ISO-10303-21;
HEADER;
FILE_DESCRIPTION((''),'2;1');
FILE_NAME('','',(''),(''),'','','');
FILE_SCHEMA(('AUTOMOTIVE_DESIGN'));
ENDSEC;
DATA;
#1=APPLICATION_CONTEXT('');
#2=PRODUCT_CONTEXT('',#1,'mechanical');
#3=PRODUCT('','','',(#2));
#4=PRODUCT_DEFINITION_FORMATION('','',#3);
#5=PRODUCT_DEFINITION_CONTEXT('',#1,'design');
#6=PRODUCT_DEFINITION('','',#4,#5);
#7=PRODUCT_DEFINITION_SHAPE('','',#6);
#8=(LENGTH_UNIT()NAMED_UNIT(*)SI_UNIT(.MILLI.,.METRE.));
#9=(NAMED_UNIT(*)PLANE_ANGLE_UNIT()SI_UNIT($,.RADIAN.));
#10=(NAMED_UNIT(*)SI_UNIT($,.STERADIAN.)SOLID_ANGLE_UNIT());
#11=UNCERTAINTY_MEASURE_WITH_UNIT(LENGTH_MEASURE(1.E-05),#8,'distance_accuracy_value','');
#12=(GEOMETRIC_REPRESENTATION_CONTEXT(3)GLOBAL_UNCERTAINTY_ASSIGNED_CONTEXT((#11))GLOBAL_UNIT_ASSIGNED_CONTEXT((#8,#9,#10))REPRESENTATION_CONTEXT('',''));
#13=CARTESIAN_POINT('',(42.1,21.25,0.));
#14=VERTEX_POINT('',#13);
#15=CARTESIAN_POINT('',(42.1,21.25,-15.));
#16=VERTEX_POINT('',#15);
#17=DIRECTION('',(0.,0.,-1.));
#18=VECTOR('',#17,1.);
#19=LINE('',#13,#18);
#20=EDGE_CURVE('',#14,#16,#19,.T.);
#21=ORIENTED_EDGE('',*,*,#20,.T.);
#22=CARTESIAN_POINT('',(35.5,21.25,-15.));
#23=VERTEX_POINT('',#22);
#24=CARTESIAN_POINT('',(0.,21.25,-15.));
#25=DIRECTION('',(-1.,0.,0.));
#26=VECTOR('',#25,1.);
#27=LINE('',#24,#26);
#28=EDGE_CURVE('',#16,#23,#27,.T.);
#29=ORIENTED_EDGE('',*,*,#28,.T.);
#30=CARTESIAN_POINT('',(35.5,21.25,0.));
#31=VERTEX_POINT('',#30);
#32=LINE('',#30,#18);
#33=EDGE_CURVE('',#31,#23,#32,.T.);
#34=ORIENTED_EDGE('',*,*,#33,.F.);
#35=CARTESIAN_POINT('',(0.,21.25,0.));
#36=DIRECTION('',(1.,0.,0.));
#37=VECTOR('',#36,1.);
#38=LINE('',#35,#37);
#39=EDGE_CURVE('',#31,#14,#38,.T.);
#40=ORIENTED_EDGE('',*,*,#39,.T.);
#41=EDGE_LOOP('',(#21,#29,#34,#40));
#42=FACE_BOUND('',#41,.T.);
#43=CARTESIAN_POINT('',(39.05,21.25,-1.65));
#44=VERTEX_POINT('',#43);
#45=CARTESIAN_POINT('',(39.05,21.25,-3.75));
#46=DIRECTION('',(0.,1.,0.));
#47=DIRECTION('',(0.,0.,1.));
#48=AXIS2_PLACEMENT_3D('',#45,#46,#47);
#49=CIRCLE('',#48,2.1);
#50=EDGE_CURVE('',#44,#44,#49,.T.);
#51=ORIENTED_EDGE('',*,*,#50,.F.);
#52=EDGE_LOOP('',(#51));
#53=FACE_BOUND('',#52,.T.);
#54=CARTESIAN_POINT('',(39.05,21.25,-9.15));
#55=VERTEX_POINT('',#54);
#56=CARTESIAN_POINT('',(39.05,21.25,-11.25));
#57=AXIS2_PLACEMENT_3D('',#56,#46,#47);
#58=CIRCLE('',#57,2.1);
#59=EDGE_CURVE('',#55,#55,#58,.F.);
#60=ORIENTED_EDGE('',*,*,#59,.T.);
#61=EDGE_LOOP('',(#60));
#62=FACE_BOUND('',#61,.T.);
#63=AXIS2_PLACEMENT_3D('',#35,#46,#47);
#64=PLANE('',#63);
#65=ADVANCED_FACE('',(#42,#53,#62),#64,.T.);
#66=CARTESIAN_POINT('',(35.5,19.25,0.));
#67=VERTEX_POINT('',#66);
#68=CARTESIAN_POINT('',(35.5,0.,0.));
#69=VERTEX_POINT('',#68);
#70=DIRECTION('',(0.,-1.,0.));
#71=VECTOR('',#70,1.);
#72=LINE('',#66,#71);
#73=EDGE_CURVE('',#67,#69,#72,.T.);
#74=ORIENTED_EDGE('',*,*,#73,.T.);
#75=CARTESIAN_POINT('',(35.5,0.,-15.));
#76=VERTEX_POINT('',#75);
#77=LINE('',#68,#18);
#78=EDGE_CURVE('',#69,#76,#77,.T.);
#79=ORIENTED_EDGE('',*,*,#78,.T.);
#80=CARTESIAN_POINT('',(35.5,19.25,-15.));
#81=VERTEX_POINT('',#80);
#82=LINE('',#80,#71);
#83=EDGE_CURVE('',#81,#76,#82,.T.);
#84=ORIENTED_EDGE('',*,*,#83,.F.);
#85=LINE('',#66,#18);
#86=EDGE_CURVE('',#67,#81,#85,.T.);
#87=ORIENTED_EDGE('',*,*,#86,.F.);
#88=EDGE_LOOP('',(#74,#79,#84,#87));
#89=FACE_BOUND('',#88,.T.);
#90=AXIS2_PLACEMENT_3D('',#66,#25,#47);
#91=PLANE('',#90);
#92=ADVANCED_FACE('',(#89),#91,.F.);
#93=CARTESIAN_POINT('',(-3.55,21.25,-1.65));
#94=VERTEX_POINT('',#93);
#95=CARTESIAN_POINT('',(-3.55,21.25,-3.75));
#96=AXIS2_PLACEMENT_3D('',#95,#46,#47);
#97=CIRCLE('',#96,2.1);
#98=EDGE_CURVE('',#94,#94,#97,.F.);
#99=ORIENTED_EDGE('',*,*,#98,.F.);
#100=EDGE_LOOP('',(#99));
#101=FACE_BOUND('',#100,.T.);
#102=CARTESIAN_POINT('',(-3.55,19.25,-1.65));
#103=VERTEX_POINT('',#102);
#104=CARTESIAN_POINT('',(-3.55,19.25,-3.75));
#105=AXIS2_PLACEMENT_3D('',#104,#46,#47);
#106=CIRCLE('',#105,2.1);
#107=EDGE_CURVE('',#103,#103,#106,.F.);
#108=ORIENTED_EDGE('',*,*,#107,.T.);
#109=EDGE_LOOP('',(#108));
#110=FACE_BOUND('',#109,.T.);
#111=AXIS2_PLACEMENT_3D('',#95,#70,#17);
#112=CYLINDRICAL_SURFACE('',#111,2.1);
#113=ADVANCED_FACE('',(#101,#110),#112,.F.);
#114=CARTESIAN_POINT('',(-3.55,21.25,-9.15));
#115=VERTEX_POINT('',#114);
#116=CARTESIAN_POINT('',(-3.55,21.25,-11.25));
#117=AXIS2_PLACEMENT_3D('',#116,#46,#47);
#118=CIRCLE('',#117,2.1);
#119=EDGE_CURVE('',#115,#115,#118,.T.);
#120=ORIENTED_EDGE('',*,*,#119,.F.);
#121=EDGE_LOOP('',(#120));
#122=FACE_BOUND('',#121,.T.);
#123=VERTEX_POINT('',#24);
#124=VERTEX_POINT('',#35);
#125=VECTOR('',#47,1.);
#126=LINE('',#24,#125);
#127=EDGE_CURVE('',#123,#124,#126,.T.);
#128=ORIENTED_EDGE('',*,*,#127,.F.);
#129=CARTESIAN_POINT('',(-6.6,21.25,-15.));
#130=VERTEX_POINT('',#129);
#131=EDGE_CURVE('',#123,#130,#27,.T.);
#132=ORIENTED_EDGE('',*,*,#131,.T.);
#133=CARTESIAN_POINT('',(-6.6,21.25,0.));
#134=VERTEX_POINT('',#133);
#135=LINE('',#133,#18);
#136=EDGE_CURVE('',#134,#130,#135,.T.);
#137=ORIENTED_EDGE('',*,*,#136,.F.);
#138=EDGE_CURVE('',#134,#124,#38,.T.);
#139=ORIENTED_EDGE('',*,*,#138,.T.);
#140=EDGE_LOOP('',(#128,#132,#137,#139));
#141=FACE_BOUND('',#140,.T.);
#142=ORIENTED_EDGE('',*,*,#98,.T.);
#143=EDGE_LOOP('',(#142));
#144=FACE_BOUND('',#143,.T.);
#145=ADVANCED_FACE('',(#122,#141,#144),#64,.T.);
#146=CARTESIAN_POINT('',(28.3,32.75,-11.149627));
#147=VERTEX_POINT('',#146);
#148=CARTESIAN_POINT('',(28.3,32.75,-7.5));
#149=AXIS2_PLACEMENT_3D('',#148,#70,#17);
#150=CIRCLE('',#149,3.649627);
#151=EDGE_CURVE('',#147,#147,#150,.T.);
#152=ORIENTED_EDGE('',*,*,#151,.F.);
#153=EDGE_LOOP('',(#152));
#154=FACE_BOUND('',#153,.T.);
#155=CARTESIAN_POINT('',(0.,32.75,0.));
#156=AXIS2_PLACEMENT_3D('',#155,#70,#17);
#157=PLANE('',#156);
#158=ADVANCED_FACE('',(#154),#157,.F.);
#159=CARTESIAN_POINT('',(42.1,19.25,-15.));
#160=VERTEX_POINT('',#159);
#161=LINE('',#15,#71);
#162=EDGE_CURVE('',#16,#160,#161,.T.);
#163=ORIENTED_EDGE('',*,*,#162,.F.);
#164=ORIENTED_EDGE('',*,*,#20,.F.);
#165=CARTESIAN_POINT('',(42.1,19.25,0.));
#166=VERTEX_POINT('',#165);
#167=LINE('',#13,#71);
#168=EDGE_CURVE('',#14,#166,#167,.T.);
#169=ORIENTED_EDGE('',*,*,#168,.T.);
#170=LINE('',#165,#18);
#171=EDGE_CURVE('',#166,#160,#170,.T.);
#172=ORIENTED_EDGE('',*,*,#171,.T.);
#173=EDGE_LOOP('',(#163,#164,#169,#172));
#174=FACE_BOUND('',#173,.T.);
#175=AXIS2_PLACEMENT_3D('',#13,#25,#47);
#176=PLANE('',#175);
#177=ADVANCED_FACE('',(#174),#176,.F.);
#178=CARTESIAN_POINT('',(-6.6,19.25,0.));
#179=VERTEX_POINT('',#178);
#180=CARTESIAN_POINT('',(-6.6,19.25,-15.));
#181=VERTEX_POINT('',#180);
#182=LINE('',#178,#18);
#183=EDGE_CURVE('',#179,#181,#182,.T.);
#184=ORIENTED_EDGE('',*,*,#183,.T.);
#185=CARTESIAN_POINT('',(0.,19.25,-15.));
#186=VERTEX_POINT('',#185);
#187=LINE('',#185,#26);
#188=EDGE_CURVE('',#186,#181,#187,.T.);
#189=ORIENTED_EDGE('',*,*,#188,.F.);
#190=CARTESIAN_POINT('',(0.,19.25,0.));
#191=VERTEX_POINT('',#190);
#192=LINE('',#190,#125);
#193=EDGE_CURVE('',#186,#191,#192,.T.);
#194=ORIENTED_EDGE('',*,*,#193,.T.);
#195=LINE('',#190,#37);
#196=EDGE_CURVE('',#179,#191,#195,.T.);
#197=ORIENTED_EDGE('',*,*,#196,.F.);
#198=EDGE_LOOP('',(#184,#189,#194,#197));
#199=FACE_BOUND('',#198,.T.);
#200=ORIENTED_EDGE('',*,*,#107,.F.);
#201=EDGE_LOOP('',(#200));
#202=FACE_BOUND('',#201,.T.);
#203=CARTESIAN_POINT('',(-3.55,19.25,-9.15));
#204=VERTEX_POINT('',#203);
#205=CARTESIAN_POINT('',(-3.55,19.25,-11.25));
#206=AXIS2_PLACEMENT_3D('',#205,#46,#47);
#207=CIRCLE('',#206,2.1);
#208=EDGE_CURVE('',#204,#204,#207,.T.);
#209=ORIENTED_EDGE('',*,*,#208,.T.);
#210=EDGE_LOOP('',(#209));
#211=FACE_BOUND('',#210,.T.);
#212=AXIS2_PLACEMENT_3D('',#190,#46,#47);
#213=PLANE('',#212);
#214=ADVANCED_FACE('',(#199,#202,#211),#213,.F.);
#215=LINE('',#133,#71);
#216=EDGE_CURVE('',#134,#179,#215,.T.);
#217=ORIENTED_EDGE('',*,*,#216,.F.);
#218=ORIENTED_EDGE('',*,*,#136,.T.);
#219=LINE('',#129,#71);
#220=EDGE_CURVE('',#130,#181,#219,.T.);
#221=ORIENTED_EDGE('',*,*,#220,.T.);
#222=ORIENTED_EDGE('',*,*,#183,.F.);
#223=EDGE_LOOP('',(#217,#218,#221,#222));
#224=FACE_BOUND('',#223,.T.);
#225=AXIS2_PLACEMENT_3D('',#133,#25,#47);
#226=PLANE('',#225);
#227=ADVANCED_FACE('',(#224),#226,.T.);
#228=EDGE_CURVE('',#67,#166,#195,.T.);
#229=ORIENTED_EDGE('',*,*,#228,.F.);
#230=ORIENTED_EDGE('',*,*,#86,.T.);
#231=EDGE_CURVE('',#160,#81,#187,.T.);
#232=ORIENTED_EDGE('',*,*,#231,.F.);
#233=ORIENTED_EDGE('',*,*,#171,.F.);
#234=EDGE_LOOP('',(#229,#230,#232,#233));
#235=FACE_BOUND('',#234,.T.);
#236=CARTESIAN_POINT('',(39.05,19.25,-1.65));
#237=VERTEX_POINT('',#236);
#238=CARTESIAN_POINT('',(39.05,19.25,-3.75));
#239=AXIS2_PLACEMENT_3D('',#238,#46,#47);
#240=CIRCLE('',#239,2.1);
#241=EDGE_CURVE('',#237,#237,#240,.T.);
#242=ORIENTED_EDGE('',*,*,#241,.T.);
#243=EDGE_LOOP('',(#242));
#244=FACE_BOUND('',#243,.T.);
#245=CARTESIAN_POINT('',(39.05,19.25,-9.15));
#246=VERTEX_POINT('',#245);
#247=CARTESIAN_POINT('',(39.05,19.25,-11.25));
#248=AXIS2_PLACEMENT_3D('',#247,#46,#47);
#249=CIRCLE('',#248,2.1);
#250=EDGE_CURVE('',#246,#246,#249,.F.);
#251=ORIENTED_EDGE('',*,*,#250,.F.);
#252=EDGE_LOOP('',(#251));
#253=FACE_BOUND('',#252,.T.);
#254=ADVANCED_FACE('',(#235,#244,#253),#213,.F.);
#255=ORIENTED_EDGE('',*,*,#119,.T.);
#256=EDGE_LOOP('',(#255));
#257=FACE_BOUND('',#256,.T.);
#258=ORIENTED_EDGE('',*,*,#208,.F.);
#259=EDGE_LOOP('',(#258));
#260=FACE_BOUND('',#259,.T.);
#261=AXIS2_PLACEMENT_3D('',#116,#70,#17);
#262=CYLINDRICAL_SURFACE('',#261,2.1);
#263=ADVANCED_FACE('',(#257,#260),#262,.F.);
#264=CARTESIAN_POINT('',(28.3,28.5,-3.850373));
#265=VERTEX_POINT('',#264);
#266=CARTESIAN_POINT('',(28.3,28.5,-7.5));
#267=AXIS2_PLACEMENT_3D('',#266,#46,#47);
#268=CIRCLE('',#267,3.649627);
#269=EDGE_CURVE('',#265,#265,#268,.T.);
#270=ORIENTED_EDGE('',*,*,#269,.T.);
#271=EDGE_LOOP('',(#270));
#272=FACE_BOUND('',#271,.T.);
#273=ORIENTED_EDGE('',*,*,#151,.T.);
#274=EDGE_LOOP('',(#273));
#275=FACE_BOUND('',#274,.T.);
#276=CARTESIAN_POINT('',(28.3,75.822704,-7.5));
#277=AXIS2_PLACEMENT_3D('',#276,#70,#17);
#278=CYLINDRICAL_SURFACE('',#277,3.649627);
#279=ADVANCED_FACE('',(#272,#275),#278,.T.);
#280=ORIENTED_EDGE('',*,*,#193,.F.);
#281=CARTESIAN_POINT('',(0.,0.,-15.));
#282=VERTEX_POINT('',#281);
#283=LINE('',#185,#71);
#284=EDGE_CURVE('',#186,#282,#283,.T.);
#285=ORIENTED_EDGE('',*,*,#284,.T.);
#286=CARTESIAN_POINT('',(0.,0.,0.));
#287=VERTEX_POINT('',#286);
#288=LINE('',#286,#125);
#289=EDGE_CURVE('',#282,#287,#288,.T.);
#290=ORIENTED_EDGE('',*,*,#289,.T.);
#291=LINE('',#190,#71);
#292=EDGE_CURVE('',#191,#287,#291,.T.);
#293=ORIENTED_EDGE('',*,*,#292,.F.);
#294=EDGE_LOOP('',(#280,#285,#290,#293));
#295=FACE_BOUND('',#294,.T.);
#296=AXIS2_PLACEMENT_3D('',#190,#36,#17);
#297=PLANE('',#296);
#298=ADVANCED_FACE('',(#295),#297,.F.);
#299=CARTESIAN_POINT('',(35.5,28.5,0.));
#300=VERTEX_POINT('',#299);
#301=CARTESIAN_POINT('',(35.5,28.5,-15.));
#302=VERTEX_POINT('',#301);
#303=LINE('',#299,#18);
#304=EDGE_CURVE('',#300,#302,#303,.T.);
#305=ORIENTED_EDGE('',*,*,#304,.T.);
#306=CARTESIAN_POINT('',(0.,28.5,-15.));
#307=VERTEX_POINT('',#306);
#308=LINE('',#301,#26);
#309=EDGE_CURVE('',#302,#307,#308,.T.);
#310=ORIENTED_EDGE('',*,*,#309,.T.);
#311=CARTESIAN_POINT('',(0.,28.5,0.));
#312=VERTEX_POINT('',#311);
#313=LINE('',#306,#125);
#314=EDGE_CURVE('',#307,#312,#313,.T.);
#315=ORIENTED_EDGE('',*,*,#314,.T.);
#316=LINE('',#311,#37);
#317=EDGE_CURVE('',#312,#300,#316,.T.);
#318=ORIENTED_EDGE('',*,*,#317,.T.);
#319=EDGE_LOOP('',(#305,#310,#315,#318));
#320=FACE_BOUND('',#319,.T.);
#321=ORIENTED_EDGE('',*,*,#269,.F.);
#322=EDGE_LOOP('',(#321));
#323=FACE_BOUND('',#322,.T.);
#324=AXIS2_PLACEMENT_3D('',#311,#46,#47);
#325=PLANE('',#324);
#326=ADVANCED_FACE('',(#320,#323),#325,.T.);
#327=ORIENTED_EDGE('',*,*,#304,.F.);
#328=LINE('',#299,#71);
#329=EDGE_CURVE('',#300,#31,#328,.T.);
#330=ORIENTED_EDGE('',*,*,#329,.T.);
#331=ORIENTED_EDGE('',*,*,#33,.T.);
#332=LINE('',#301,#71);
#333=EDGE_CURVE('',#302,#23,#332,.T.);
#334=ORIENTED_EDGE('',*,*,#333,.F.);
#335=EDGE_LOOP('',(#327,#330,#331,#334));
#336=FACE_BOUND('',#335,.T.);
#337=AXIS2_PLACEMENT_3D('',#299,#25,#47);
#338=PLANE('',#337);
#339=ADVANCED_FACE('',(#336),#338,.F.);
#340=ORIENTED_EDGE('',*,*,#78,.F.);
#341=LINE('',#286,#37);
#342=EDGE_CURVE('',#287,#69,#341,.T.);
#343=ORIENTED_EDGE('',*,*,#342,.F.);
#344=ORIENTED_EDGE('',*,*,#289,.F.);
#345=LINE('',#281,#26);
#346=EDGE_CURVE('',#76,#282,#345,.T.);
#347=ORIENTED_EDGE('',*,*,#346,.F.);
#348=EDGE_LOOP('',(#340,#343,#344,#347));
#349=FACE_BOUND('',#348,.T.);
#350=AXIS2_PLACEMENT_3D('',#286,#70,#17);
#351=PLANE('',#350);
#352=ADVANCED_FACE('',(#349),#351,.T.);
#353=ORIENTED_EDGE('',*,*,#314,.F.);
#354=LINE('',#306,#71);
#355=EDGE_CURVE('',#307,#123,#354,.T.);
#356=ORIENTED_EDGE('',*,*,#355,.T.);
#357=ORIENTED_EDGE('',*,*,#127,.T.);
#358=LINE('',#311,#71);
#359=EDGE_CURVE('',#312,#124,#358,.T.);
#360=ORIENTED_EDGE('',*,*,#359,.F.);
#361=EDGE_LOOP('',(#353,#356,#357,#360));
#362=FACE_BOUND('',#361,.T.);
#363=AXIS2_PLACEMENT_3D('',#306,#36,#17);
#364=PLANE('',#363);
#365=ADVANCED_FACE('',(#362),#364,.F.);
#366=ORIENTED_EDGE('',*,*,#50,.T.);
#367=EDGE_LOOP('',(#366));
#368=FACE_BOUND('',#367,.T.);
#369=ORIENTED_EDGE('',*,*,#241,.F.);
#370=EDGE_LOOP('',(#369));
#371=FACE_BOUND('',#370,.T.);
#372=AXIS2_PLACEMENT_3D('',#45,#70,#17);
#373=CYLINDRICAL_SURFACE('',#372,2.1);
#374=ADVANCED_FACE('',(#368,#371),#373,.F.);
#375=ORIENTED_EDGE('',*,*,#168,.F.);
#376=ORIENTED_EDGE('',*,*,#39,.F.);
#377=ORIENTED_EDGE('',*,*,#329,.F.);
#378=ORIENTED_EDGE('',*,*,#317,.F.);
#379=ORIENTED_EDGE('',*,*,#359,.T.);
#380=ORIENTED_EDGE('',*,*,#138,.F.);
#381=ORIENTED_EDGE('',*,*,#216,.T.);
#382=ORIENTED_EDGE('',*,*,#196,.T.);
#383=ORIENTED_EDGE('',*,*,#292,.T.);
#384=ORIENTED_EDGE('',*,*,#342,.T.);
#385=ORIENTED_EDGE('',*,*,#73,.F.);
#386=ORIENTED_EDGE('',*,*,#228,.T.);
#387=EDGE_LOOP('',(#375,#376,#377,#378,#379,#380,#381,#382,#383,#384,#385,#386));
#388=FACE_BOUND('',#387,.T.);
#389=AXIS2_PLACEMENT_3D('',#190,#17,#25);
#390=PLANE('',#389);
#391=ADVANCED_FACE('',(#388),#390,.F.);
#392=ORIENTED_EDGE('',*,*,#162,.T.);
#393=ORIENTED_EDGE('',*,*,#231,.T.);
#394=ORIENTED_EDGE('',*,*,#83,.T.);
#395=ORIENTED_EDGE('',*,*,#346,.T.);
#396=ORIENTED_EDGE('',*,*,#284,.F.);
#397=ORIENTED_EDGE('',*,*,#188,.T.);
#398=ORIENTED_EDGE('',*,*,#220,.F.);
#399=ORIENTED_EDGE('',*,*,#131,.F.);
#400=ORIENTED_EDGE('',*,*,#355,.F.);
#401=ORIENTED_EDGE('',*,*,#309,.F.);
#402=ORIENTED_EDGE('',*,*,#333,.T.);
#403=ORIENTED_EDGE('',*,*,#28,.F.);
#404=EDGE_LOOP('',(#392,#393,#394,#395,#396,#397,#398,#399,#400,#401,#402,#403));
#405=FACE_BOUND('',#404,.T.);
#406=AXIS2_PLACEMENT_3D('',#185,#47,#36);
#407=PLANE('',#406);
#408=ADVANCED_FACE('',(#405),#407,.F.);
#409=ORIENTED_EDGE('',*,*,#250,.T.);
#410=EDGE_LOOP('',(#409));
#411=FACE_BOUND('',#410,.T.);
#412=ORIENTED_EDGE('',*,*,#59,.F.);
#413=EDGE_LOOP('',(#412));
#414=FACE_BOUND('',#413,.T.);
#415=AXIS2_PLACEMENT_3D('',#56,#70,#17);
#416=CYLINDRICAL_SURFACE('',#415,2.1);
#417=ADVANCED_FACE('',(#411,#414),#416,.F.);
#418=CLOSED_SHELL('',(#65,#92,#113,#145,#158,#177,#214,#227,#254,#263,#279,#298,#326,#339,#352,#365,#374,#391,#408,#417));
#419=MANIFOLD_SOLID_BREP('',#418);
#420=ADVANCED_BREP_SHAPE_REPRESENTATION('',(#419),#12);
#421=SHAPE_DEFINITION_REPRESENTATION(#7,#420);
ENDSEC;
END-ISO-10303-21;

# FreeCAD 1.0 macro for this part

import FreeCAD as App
import Part
import Sketcher


def add_polygon(sketch, points):
    """Adds a closed chain of lines whose ends are joined by coincident constraints."""
    first, n = sketch.GeometryCount, len(points)
    for a, b in zip(points, points[1:] + points[:1]):
        sketch.addGeometry(Part.LineSegment(App.Vector(*a, 0), App.Vector(*b, 0)), False)
    for i in range(n):
        sketch.addConstraint(Sketcher.Constraint("Coincident", first + i, 2, first + (i + 1) % n, 1))

doc = App.newDocument("Part")
params = doc.addObject("Spreadsheet::Sheet", "Params")
for row, (alias, value) in enumerate([
    ("sketch1_height", "15 mm"),
    ("sketch1_width", "35.5 mm"),
    ("pad1_length", "19.25 mm"),
    ("sketch2_diameter", "4.2 mm"),
    ("sketch2_height", "15 mm"),
    ("sketch2_width", "48.7 mm"),
    ("pad2_length", "2 mm"),
    ("sketch3_height", "15 mm"),
    ("sketch3_width", "35.5 mm"),
    ("pad3_length", "7.25 mm"),
    ("pad4_length", "4.25 mm"),
], start=1):
    params.set(f"A{row}", alias)
    params.set(f"B{row}", "=" + value)
    params.setAlias(f"B{row}", alias)

body = doc.addObject("PartDesign::Body", "Body")

# Sketch on XZ plane
sketch1 = doc.addObject("Sketcher::SketchObject", "Sketch")
body.addObject(sketch1)
sketch1.AttachmentSupport = (doc.XZ_Plane, [""])
sketch1.MapMode = "FlatFace"
add_polygon(sketch1, [(0, -15), (0, 0), (35.5, 0), (35.5, -15)])  # lines 0-3
sketch1.addConstraint([
    Sketcher.Constraint("Vertical", 0),
    Sketcher.Constraint("Horizontal", 1),
    Sketcher.Constraint("Vertical", 2),
    Sketcher.Constraint("Horizontal", 3),
    Sketcher.Constraint("Coincident", 0, 2, -1, 1),
    Sketcher.Constraint("DistanceY", 0, 1, 0, 2, 15.0),
    Sketcher.Constraint("DistanceX", 1, 1, 1, 2, 35.5),
])
sketch1.setExpression("Constraints[9]", "Params.sketch1_height")
sketch1.setExpression("Constraints[10]", "Params.sketch1_width")
pad1 = doc.addObject("PartDesign::Pad", "Pad")
body.addObject(pad1)
pad1.Profile = sketch1
pad1.setExpression("Length", "Params.pad1_length")
pad1.Reversed = True

# Sketch on XZ plane
sketch2 = doc.addObject("Sketcher::SketchObject", "Sketch001")
body.addObject(sketch2)
sketch2.AttachmentSupport = (doc.XZ_Plane, [""])
sketch2.MapMode = "FlatFace"
sketch2.AttachmentOffset = App.Placement(App.Vector(0, 0, -19.25), App.Rotation())
add_polygon(sketch2, [(42.1, 0), (42.1, -15), (-6.6, -15), (-6.6, 0)])  # lines 0-3
sketch2.addGeometry(Part.Circle(App.Vector(-3.55, -11.25, 0), App.Vector(0, 0, 1), 2.1), False)  # 4
sketch2.addGeometry(Part.Circle(App.Vector(-3.55, -3.75, 0), App.Vector(0, 0, 1), 2.1), False)  # 5
sketch2.addGeometry(Part.Circle(App.Vector(39.05, -11.25, 0), App.Vector(0, 0, 1), 2.1), False)  # 6
sketch2.addGeometry(Part.Circle(App.Vector(39.05, -3.75, 0), App.Vector(0, 0, 1), 2.1), False)  # 7
sketch2.addConstraint([
    Sketcher.Constraint("Vertical", 0),
    Sketcher.Constraint("Horizontal", 1),
    Sketcher.Constraint("Vertical", 2),
    Sketcher.Constraint("Horizontal", 3),
    Sketcher.Constraint("Equal", 4, 5),
    Sketcher.Constraint("Equal", 5, 6),
    Sketcher.Constraint("Equal", 6, 7),
    Sketcher.Constraint("PointOnObject", 2, 2, -1),
    Sketcher.Constraint("Horizontal", 4, 3, 6, 3),
    Sketcher.Constraint("Horizontal", 5, 3, 7, 3),
    Sketcher.Constraint("Vertical", 4, 3, 5, 3),
    Sketcher.Constraint("Vertical", 6, 3, 7, 3),
    Sketcher.Constraint("Diameter", 4, 4.2),
    Sketcher.Constraint("DistanceY", 0, 2, 0, 1, 15.0),
    Sketcher.Constraint("DistanceX", 1, 2, 1, 1, 48.7),
    Sketcher.Constraint("DistanceX", -1, 1, 0, 2, 42.1),
    Sketcher.Constraint("DistanceY", 4, 3, 5, 3, 7.5),
    Sketcher.Constraint("DistanceX", 4, 3, 6, 3, 42.6),
    Sketcher.Constraint("DistanceX", 4, 3, -1, 1, 3.55),
    Sketcher.Constraint("DistanceY", 4, 3, -1, 1, 11.25),
])
sketch2.setExpression("Constraints[16]", "Params.sketch2_diameter")
sketch2.setExpression("Constraints[17]", "Params.sketch2_height")
sketch2.setExpression("Constraints[18]", "Params.sketch2_width")
pad2 = doc.addObject("PartDesign::Pad", "Pad001")
body.addObject(pad2)
pad2.Profile = sketch2
pad2.setExpression("Length", "Params.pad2_length")
pad2.Reversed = True

# Sketch on XZ plane
sketch3 = doc.addObject("Sketcher::SketchObject", "Sketch002")
body.addObject(sketch3)
sketch3.AttachmentSupport = (doc.XZ_Plane, [""])
sketch3.MapMode = "FlatFace"
sketch3.AttachmentOffset = App.Placement(App.Vector(0, 0, -21.25), App.Rotation())
add_polygon(sketch3, [(0, -15), (0, 0), (35.5, 0), (35.5, -15)])  # lines 0-3
sketch3.addConstraint([
    Sketcher.Constraint("Vertical", 0),
    Sketcher.Constraint("Horizontal", 1),
    Sketcher.Constraint("Vertical", 2),
    Sketcher.Constraint("Horizontal", 3),
    Sketcher.Constraint("Coincident", 0, 2, -1, 1),
    Sketcher.Constraint("DistanceY", 0, 1, 0, 2, 15.0),
    Sketcher.Constraint("DistanceX", 1, 1, 1, 2, 35.5),
])
sketch3.setExpression("Constraints[9]", "Params.sketch3_height")
sketch3.setExpression("Constraints[10]", "Params.sketch3_width")
pad3 = doc.addObject("PartDesign::Pad", "Pad002")
body.addObject(pad3)
pad3.Profile = sketch3
pad3.setExpression("Length", "Params.pad3_length")
pad3.Reversed = True

# Sketch on XZ plane
sketch4 = doc.addObject("Sketcher::SketchObject", "Sketch003")
body.addObject(sketch4)
sketch4.AttachmentSupport = (doc.XZ_Plane, [""])
sketch4.MapMode = "FlatFace"
sketch4.AttachmentOffset = App.Placement(App.Vector(0, 0, -28.5), App.Rotation())
sketch4.addGeometry(Part.Circle(App.Vector(28.3, -7.5, 0), App.Vector(0, 0, 1), 3.649627), False)
sketch4.addConstraint([
    Sketcher.Constraint("DistanceX", -1, 1, 0, 3, 28.3),
    Sketcher.Constraint("DistanceY", 0, 3, -1, 1, 7.5),
    Sketcher.Constraint("Diameter", 0, 7.299254),
])
pad4 = doc.addObject("PartDesign::Pad", "Pad003")
body.addObject(pad4)
pad4.Profile = sketch4
pad4.setExpression("Length", "Params.pad4_length")
pad4.Reversed = True

doc.recompute()
